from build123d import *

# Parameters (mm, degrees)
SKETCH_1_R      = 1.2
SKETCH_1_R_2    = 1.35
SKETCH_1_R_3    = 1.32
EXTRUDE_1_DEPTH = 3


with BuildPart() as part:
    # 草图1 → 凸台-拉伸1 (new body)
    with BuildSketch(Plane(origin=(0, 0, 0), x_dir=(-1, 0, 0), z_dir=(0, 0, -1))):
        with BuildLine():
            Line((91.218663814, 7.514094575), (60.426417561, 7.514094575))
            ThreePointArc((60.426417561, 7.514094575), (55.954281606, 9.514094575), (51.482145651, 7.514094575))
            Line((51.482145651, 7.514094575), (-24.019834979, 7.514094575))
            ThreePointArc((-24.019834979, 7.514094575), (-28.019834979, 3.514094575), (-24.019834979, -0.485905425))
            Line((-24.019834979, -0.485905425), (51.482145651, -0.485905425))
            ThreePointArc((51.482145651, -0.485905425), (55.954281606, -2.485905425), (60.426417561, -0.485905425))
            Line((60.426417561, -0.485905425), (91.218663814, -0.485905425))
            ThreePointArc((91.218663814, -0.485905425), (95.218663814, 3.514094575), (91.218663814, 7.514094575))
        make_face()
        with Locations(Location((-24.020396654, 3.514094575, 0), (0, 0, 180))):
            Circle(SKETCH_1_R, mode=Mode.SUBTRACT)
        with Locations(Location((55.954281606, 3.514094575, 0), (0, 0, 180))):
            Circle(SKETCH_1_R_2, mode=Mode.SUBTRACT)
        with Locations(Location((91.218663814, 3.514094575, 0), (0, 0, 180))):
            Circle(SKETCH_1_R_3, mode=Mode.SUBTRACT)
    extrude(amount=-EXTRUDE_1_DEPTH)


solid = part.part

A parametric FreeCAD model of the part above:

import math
import FreeCAD as App
import Part
import Sketcher

doc = App.newDocument("Part")
body = doc.addObject("PartDesign::Body", "Body")

# Sketch on XY plane
sketch1 = body.newObject("Sketcher::SketchObject", "Sketch")
sketch1.AttachmentSupport = (doc.getObject("XY_Plane"), [""])
sketch1.MapMode = "FlatFace"
sketch1.addGeometry([
    Part.LineSegment(App.Vector(-91.2, 7.5, 0), App.Vector(-60.4, 7.5, 0)),  # 0
    Part.ArcOfCircle(Part.Circle(App.Vector(-56, 3.5, 0), App.Vector(0, 0, 1), 6), math.radians(42), math.radians(138)),  # 1
    Part.LineSegment(App.Vector(-51.5, 7.5, 0), App.Vector(24, 7.5, 0)),  # 2
    Part.ArcOfCircle(Part.Circle(App.Vector(24, 3.5, 0), App.Vector(0, 0, 1), 4), math.radians(-90), math.radians(90)),  # 3
    Part.LineSegment(App.Vector(24, -0.5, 0), App.Vector(-51.5, -0.5, 0)),  # 4
    Part.ArcOfCircle(Part.Circle(App.Vector(-56, 3.5, 0), App.Vector(0, 0, 1), 6), math.radians(-138), math.radians(-42)),  # 5
    Part.LineSegment(App.Vector(-60.4, -0.5, 0), App.Vector(-91.2, -0.5, 0)),  # 6
    Part.ArcOfCircle(Part.Circle(App.Vector(-91.2, 3.5, 0), App.Vector(0, 0, 1), 4), math.radians(90), math.radians(270)),  # 7
    Part.Circle(App.Vector(24, 3.5, 0), App.Vector(0, 0, 1), 1.2),  # 8
    Part.Circle(App.Vector(-56, 3.5, 0), App.Vector(0, 0, 1), 1.4),  # 9
    Part.Circle(App.Vector(-91.2, 3.5, 0), App.Vector(0, 0, 1), 1.3),  # 10
], False)
sketch1.addConstraint([
    Sketcher.Constraint("Coincident", 0, 2, 1, 2),
    Sketcher.Constraint("Coincident", 1, 1, 2, 1),
    Sketcher.Constraint("Tangent", 2, 2, 3, 2),
    Sketcher.Constraint("Tangent", 3, 1, 4, 1),
    Sketcher.Constraint("Coincident", 4, 2, 5, 2),
    Sketcher.Constraint("Coincident", 5, 1, 6, 1),
    Sketcher.Constraint("Tangent", 6, 2, 7, 2),
    Sketcher.Constraint("Tangent", 7, 1, 0, 1),
    Sketcher.Constraint("Horizontal", 0),
    Sketcher.Constraint("Horizontal", 2),
    Sketcher.Constraint("Horizontal", 4),
    Sketcher.Constraint("Horizontal", 6),
    Sketcher.Constraint("Coincident", 5, 3, 1, 3),
    Sketcher.Constraint("Coincident", 9, 3, 1, 3),
    Sketcher.Constraint("Coincident", 10, 3, 7, 3),
    Sketcher.Constraint("Equal", 1, 5),
    Sketcher.Constraint("Equal", 3, 7),
    Sketcher.Constraint("Horizontal", 1, 3, 3, 3),
    Sketcher.Constraint("Horizontal", 5, 3, 7, 3),
    Sketcher.Constraint("Horizontal", 7, 3, 8, 3),
    Sketcher.Constraint("Radius", 1, 6.0),
    Sketcher.Constraint("Radius", 3, 4.0),
    Sketcher.Constraint("Diameter", 8, 2.4),
    Sketcher.Constraint("Diameter", 9, 2.7),
    Sketcher.Constraint("Diameter", 10, 2.64),
    Sketcher.Constraint("DistanceX", 2, 1, 2, 2, 75.501981),
    Sketcher.Constraint("DistanceX", 7, 3, 3, 3, 115.238499),
    Sketcher.Constraint("DistanceX", 1, 3, -1, 1, 55.954282),
    Sketcher.Constraint("DistanceX", 3, 3, 8, 3, 0.000562),
    Sketcher.Constraint("DistanceY", -1, 1, 1, 3, 3.514095),
])
pad1 = body.newObject("PartDesign::Pad", "Pad")
pad1.Profile = sketch1
pad1.Length = 3

doc.recompute()
